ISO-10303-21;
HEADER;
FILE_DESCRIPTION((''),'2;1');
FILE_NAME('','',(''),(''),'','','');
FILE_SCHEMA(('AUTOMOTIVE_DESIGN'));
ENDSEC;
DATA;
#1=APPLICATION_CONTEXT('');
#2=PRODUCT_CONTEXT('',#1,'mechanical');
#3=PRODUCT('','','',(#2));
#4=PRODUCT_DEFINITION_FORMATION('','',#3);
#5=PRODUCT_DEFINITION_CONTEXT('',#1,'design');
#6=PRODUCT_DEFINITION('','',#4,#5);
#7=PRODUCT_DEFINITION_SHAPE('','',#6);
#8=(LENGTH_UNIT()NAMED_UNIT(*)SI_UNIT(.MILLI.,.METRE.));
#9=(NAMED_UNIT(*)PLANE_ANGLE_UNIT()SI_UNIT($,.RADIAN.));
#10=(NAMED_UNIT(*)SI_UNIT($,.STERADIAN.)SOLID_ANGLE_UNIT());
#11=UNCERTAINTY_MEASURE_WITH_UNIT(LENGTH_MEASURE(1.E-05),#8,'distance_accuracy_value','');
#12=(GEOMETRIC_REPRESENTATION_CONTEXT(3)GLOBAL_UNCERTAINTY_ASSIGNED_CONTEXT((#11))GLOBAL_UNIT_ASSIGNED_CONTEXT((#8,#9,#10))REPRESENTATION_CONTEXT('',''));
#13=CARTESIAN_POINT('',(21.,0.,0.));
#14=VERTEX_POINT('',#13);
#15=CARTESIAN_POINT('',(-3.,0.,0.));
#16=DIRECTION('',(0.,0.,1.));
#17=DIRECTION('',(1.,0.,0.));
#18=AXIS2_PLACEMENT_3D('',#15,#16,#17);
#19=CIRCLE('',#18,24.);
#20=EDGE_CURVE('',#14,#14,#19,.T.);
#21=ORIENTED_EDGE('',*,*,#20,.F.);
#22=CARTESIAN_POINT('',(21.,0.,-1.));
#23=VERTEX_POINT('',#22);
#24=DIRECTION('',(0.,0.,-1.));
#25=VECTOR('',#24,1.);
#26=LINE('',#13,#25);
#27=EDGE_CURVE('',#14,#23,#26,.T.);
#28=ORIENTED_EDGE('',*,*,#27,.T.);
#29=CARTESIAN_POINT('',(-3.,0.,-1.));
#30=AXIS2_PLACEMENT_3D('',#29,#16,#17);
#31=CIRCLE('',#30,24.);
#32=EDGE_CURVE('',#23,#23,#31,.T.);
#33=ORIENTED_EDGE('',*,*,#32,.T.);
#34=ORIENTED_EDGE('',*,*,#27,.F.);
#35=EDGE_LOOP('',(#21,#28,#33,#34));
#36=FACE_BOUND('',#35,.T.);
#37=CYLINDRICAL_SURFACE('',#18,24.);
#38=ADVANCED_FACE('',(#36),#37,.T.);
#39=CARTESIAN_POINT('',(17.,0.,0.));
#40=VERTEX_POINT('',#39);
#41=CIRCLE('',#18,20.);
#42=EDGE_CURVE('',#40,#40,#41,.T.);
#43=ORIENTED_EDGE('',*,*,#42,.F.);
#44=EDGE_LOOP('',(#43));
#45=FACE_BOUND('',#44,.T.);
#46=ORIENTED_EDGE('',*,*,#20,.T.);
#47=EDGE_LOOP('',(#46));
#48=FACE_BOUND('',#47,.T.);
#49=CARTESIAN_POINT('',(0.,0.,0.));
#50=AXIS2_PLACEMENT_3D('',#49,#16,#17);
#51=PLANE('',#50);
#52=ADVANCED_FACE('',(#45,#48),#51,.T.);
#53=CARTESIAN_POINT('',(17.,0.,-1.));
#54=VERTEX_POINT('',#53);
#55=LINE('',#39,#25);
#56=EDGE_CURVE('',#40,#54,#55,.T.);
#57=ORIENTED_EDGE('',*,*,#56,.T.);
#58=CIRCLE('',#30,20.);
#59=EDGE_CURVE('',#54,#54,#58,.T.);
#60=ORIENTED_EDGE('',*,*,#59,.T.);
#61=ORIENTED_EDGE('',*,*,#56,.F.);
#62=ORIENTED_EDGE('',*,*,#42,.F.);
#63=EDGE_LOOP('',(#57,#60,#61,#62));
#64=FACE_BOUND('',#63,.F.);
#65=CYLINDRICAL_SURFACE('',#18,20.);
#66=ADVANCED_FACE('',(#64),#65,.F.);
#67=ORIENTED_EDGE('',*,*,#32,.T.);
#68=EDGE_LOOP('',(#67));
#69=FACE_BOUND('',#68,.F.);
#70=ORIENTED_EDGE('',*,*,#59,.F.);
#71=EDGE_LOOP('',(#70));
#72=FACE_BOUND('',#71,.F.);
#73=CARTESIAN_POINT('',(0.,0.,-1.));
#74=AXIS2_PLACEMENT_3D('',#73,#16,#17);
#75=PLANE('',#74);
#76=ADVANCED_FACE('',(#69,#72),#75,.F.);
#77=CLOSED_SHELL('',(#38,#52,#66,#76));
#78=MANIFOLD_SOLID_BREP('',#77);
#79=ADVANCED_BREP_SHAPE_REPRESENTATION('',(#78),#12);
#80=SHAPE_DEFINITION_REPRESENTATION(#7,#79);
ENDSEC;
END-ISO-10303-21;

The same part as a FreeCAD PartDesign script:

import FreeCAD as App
import Part
import Sketcher

V = App.Vector

doc = App.newDocument("Part")
body = doc.addObject("PartDesign::Body", "Body")

sketch1 = doc.addObject("Sketcher::SketchObject", "Sketch")
body.addObject(sketch1)
sketch1.AttachmentSupport = (doc.XY_Plane, [""])
sketch1.MapMode = "FlatFace"
sketch1.addGeometry([
    Part.Circle(V(-3, 0, 0), V(0, 0, 1), 24),
    Part.Circle(V(-3, 0, 0), V(0, 0, 1), 20),
], False)
sketch1.addConstraint([
    Sketcher.Constraint("Coincident", 1, 3, 0, 3),
    Sketcher.Constraint("PointOnObject", 0, 3, -1),
    Sketcher.Constraint("Diameter", 0, 48.0),
    Sketcher.Constraint("Diameter", 1, 40.0),
    Sketcher.Constraint("DistanceX", 0, 3, -1, 1, 3.0),
])
pad1 = doc.addObject("PartDesign::Pad", "Pad")
body.addObject(pad1)
pad1.Profile = sketch1
pad1.Length = 1
pad1.Reversed = True

doc.recompute()
